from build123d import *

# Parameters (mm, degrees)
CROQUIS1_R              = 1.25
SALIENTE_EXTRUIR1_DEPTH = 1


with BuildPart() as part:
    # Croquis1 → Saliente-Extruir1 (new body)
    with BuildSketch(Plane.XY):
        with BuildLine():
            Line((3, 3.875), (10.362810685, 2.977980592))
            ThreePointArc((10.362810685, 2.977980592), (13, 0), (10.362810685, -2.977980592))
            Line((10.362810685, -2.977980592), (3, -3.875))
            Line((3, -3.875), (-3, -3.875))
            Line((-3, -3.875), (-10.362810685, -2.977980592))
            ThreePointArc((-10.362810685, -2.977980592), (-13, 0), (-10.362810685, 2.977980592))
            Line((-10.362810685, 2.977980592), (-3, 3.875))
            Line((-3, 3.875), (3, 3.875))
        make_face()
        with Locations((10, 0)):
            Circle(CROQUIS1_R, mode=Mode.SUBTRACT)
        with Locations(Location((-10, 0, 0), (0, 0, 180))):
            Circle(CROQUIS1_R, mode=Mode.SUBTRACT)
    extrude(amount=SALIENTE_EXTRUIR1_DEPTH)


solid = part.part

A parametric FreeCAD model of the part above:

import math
import FreeCAD as App
import Part
import Sketcher
from FreeCAD import Vector

doc = App.newDocument("Part")
params = doc.addObject("Spreadsheet::Sheet", "Params")
for row, (alias, value) in enumerate([
    ("sketch1_radius", "3 mm"),
    ("sketch1_diameter", "2.5 mm"),
    ("sketch1_width", "6 mm"),
    ("pad1_length", "1 mm"),
], start=1):
    params.set(f"A{row}", alias)
    params.set(f"B{row}", "=" + value)
    params.setAlias(f"B{row}", alias)

body = doc.addObject("PartDesign::Body", "Body")

sketch1 = doc.addObject("Sketcher::SketchObject", "Sketch")
body.addObject(sketch1)
sketch1.AttachmentSupport = (doc.XY_Plane, [""])
sketch1.MapMode = "FlatFace"
sketch1.addGeometry(Part.LineSegment(Vector(10.362811, 2.977981, 0), Vector(3, 3.875, 0)), False)
sketch1.addGeometry(Part.LineSegment(Vector(3, 3.875, 0), Vector(-3, 3.875, 0)), False)
sketch1.addGeometry(Part.LineSegment(Vector(-3, 3.875, 0), Vector(-10.362811, 2.977981, 0)), False)
sketch1.addGeometry(Part.ArcOfCircle(Part.Circle(Vector(-10, 0, 0), Vector(0, 0, 1), 3), math.radians(96.946177), math.radians(263.053823)), False)
sketch1.addGeometry(Part.LineSegment(Vector(-10.362811, -2.977981, 0), Vector(-3, -3.875, 0)), False)
sketch1.addGeometry(Part.LineSegment(Vector(-3, -3.875, 0), Vector(3, -3.875, 0)), False)
sketch1.addGeometry(Part.LineSegment(Vector(3, -3.875, 0), Vector(10.362811, -2.977981, 0)), False)
sketch1.addGeometry(Part.ArcOfCircle(Part.Circle(Vector(10, 0, 0), Vector(0, 0, 1), 3), math.radians(-83.053823), math.radians(83.053823)), False)
sketch1.addGeometry(Part.Circle(Vector(10, 0, 0), Vector(0, 0, 1), 1.25), False)
sketch1.addGeometry(Part.Circle(Vector(-10, 0, 0), Vector(0, 0, 1), 1.25), False)
sketch1.addConstraint(Sketcher.Constraint("Coincident", 0, 2, 1, 1))
sketch1.addConstraint(Sketcher.Constraint("Coincident", 1, 2, 2, 1))
sketch1.addConstraint(Sketcher.Constraint("Tangent", 2, 2, 3, 1))
sketch1.addConstraint(Sketcher.Constraint("Tangent", 3, 2, 4, 1))
sketch1.addConstraint(Sketcher.Constraint("Coincident", 4, 2, 5, 1))
sketch1.addConstraint(Sketcher.Constraint("Coincident", 5, 2, 6, 1))
sketch1.addConstraint(Sketcher.Constraint("Tangent", 6, 2, 7, 1))
sketch1.addConstraint(Sketcher.Constraint("Tangent", 7, 2, 0, 1))
sketch1.addConstraint(Sketcher.Constraint("Horizontal", 1))
sketch1.addConstraint(Sketcher.Constraint("Horizontal", 5))
sketch1.addConstraint(Sketcher.Constraint("Coincident", 8, 3, 7, 3))
sketch1.addConstraint(Sketcher.Constraint("Coincident", 9, 3, 3, 3))
sketch1.addConstraint(Sketcher.Constraint("Equal", 3, 7))
sketch1.addConstraint(Sketcher.Constraint("Equal", 8, 9))
sketch1.addConstraint(Sketcher.Constraint("Symmetric", 3, 3, 7, 3, -1, 1))
sketch1.addConstraint(Sketcher.Constraint("Symmetric", 0, 2, 4, 2, -1, 1))
sketch1.addConstraint(Sketcher.Constraint("Symmetric", 3, 2, 6, 2, -2))
sketch1.addConstraint(Sketcher.Constraint("Parallel", 2, 6))
sketch1.addConstraint(Sketcher.Constraint("Radius", 3, 3.0))
sketch1.addConstraint(Sketcher.Constraint("Diameter", 8, 2.5))
sketch1.addConstraint(Sketcher.Constraint("DistanceX", 1, 2, 1, 1, 6.0))
sketch1.addConstraint(Sketcher.Constraint("DistanceX", 3, 3, -1, 1, 10.0))
sketch1.addConstraint(Sketcher.Constraint("DistanceY", 4, 2, 1, 2, 7.75))
sketch1.setExpression("Constraints[18]", "Params.sketch1_radius")
sketch1.setExpression("Constraints[19]", "Params.sketch1_diameter")
sketch1.setExpression("Constraints[20]", "Params.sketch1_width")
pad1 = doc.addObject("PartDesign::Pad", "Pad")
body.addObject(pad1)
pad1.Profile = sketch1
pad1.setExpression("Length", "Params.pad1_length")

doc.recompute()
